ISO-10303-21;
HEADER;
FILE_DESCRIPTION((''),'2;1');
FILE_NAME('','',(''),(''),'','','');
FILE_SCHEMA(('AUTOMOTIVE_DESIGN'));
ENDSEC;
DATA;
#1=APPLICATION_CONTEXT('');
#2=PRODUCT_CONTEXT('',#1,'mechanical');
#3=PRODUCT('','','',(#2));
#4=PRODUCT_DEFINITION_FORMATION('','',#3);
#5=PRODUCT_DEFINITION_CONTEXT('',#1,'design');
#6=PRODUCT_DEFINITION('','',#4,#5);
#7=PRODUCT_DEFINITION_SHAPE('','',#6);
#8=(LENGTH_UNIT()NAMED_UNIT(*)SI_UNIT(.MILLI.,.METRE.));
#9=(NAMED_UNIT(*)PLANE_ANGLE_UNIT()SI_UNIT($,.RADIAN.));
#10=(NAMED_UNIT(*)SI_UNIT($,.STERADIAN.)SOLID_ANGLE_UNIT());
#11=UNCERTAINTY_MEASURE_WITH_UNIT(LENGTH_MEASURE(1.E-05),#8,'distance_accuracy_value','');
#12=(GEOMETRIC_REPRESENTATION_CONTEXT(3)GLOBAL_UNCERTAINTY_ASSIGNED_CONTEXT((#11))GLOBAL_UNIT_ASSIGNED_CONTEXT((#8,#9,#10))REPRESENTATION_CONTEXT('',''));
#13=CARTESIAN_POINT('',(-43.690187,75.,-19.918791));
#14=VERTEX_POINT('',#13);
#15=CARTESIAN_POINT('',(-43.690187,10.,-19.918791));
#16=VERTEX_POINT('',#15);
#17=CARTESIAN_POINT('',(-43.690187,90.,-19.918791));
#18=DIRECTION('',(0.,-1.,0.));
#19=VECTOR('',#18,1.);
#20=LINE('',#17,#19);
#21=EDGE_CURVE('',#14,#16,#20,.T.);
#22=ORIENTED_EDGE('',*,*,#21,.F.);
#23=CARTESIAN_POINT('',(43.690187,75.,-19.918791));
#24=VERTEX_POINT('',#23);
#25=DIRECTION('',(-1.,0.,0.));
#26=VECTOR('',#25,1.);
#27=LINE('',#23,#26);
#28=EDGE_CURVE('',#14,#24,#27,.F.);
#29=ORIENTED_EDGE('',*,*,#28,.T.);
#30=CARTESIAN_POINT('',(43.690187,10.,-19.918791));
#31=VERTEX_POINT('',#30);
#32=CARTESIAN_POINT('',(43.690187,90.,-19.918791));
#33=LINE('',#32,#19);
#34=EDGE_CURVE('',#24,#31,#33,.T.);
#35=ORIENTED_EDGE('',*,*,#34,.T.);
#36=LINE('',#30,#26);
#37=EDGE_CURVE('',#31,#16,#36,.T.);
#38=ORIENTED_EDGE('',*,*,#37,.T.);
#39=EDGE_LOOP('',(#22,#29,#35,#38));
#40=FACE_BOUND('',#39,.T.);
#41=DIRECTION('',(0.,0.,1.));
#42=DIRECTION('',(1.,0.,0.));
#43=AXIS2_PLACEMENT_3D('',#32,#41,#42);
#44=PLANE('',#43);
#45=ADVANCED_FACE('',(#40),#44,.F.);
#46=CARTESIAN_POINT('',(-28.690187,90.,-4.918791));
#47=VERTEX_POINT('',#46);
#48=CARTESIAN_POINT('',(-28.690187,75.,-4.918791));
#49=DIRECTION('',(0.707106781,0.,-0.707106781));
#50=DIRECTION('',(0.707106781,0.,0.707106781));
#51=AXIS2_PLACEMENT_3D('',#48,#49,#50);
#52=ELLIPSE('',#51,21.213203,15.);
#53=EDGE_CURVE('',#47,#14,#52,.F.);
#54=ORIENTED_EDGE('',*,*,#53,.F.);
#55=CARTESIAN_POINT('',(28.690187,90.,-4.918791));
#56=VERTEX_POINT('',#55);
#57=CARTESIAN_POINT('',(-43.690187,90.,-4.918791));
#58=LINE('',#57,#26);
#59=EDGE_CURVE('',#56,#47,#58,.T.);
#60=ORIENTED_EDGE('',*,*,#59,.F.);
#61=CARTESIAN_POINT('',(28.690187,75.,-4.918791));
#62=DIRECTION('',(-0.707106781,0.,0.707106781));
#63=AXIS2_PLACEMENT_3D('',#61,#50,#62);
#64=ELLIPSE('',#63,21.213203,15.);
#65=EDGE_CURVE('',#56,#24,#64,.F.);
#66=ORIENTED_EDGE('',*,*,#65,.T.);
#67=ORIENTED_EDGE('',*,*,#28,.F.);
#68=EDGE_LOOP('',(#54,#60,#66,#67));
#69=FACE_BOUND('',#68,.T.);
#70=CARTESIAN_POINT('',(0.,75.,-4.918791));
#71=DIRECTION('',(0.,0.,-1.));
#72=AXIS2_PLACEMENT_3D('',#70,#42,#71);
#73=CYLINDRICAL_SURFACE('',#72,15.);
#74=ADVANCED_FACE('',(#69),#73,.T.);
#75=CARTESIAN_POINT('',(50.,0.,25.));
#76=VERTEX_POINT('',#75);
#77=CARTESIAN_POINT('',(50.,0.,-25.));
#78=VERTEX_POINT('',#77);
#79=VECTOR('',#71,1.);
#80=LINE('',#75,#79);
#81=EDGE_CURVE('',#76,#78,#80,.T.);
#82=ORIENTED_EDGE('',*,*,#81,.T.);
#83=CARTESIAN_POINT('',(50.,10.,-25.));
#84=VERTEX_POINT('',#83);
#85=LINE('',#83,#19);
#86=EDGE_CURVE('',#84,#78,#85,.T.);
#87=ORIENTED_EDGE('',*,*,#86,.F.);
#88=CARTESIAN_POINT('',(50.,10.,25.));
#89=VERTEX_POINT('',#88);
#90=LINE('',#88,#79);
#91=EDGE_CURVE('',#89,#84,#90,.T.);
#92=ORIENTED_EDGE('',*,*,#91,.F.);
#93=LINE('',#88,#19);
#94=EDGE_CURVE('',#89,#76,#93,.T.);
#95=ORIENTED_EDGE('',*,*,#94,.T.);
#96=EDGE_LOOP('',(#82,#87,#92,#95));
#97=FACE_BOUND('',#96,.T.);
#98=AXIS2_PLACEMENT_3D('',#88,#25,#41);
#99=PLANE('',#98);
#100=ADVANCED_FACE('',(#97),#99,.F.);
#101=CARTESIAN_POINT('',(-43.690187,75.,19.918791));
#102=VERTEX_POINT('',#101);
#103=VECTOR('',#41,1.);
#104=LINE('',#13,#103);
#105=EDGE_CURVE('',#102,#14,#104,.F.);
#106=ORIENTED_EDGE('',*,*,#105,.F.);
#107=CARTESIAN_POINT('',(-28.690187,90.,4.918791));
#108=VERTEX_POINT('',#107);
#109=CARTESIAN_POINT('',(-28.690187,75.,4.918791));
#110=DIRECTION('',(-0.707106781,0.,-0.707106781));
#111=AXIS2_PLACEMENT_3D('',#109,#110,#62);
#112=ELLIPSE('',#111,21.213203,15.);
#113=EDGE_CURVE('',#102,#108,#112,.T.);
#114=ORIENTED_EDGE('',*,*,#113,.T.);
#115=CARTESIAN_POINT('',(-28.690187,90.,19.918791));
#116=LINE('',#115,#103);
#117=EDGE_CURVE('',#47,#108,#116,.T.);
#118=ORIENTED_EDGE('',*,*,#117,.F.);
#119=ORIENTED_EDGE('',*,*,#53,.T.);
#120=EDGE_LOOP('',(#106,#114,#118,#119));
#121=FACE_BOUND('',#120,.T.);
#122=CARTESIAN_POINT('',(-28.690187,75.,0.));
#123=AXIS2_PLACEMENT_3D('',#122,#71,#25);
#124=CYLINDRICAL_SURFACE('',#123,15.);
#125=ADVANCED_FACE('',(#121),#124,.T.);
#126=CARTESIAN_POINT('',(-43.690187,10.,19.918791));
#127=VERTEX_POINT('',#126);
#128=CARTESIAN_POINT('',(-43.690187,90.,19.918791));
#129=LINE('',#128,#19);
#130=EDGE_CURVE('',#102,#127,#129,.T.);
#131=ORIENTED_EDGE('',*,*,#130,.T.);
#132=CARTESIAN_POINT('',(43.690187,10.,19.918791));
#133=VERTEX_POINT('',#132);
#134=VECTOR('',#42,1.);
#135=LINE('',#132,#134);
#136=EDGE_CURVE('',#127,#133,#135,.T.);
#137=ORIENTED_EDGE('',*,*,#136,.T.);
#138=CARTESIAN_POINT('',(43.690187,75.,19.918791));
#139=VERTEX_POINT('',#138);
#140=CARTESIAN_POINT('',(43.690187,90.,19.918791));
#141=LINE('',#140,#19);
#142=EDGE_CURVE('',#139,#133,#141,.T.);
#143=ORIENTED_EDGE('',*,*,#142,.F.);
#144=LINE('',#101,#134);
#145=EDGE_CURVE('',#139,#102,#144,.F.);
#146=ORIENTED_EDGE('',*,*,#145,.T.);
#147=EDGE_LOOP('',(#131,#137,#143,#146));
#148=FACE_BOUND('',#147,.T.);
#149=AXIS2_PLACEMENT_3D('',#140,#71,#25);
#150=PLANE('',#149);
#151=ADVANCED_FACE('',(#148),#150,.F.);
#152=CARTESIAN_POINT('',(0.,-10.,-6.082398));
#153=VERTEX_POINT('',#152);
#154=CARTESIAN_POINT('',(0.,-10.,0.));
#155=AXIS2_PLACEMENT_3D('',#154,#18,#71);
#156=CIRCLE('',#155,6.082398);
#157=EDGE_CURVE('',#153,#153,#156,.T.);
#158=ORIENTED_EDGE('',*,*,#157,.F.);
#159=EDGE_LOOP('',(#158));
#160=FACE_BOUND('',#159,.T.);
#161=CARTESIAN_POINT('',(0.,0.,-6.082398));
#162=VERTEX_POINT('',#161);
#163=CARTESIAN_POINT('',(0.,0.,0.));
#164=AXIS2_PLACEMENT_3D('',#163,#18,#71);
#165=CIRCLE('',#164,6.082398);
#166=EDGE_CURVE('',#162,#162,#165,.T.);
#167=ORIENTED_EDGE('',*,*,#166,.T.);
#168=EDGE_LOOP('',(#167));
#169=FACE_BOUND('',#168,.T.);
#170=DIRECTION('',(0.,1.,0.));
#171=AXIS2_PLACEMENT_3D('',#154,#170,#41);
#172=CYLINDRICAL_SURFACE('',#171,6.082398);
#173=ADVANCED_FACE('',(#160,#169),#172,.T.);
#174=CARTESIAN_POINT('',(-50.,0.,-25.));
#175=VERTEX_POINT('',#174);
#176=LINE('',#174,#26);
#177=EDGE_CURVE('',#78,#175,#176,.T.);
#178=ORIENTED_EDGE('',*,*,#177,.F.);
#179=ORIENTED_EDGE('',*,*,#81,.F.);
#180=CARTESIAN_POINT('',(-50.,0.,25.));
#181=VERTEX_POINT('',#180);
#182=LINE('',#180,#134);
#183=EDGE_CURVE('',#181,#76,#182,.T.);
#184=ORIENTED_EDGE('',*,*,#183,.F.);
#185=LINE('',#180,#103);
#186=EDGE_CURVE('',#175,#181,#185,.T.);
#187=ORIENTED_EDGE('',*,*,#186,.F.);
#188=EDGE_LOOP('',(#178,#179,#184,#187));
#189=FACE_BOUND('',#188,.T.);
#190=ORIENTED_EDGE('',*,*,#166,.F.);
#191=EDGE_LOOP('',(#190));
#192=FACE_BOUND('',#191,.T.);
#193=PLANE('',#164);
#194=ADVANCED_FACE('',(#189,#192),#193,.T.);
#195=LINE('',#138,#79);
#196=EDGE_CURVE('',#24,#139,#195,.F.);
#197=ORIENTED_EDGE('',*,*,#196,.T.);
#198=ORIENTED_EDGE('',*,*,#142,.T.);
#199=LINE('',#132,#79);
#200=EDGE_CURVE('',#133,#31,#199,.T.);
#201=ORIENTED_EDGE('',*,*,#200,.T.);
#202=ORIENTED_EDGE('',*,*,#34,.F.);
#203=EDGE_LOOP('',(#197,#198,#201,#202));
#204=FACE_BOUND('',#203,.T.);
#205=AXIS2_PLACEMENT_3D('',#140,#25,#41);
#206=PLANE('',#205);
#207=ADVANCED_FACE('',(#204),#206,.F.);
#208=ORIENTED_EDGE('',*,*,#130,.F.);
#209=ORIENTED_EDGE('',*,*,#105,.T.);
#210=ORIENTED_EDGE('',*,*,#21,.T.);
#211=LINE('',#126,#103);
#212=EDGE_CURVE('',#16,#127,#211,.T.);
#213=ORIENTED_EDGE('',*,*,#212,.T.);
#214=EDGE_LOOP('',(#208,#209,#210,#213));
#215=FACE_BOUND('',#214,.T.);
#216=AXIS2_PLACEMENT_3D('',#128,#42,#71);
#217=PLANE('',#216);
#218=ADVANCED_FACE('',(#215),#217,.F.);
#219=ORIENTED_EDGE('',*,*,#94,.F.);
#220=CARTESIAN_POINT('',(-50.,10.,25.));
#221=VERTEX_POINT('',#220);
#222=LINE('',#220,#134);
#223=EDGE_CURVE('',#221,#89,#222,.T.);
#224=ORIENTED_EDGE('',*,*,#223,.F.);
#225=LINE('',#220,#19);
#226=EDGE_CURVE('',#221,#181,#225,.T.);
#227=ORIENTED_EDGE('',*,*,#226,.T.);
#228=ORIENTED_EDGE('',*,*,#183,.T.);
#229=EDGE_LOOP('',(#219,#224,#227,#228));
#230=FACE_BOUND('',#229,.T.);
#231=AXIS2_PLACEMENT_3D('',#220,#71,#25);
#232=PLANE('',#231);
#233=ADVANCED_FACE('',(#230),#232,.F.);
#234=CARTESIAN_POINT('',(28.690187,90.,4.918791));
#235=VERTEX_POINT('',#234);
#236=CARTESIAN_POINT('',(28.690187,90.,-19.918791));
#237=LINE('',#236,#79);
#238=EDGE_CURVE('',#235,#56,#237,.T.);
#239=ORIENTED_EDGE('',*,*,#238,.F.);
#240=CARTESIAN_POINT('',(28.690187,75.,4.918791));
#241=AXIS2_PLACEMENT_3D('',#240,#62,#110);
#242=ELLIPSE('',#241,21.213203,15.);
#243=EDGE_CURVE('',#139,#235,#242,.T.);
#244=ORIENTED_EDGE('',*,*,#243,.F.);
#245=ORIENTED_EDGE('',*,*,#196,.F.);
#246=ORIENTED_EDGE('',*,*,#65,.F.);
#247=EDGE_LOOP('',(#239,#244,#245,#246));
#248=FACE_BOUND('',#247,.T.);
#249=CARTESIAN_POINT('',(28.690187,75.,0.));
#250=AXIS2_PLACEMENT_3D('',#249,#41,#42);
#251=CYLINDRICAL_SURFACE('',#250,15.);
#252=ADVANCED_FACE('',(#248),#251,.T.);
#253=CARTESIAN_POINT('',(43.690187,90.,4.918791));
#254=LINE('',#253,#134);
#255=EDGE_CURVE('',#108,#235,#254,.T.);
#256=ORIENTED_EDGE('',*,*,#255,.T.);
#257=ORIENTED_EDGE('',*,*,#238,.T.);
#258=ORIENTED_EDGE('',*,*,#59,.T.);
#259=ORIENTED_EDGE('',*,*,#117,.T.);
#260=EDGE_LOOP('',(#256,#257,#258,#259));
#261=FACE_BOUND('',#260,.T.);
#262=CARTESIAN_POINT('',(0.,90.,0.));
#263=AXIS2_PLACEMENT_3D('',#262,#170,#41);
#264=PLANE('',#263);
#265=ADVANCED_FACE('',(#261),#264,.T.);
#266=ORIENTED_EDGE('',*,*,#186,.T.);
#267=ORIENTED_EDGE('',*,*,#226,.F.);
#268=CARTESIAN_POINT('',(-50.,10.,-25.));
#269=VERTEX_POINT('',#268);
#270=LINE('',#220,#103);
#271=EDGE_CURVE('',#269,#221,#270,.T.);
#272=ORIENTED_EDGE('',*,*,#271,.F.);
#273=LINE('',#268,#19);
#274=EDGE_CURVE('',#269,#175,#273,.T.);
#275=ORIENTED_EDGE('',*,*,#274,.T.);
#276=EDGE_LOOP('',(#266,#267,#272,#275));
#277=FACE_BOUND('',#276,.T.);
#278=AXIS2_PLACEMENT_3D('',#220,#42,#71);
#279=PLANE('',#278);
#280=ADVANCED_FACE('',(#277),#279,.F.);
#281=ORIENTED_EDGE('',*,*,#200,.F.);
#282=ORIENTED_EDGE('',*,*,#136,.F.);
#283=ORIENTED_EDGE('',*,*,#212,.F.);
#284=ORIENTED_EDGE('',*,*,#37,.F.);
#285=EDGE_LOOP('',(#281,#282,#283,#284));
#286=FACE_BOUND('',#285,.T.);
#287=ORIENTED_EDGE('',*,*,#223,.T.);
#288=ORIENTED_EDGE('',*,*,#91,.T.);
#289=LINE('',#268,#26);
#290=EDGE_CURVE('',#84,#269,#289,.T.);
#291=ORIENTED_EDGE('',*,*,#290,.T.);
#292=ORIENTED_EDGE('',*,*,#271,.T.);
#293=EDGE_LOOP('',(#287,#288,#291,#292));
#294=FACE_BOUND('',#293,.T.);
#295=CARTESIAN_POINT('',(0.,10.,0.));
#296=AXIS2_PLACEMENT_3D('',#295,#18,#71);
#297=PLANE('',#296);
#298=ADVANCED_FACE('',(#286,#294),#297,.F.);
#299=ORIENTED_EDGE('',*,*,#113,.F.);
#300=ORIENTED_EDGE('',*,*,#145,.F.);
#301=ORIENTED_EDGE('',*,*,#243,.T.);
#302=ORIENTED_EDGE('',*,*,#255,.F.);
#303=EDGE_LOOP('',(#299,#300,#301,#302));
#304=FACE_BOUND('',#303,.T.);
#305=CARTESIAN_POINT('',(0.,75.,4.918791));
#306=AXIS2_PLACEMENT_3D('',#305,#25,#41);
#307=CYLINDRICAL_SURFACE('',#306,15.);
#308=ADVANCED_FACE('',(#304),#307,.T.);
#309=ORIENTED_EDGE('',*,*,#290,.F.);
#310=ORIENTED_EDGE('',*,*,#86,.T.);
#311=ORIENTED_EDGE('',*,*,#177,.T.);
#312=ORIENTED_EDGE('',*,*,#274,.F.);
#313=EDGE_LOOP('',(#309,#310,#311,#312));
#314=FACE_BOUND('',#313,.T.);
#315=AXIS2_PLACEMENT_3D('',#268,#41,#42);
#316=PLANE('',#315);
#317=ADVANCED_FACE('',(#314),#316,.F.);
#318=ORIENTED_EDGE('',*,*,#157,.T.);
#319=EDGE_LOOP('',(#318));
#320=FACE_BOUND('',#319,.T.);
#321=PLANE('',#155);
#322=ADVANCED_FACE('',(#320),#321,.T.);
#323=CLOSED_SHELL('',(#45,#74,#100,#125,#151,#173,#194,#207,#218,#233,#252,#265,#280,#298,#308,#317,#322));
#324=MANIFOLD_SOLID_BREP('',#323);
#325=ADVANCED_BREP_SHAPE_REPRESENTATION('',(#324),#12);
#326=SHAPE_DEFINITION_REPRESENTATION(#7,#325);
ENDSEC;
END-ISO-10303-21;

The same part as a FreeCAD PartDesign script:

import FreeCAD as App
import Part
import Sketcher

V = App.Vector
Q = App.Units.Quantity


def edges_at(feature, points):
    """Names of the edges that pass closest to the given points."""
    edges = feature.Shape.Edges
    near = lambda p: min(range(len(edges)), key=lambda i: edges[i].distToShape(Part.Vertex(*p))[0])
    return sorted({f"Edge{near(p) + 1}" for p in points})

doc = App.newDocument("Part")
body = doc.addObject("PartDesign::Body", "Body")

# Sketch on XZ plane
sketch1 = doc.addObject("Sketcher::SketchObject", "Sketch")
body.addObject(sketch1)
sketch1.AttachmentSupport = (doc.XZ_Plane, [""])
sketch1.MapMode = "FlatFace"
sketch1.addGeometry([
    Part.LineSegment(V(-50, -25, 0), V(-50, 25, 0)),
    Part.LineSegment(V(-50, 25, 0), V(50, 25, 0)),
    Part.LineSegment(V(50, 25, 0), V(50, -25, 0)),
    Part.LineSegment(V(50, -25, 0), V(-50, -25, 0)),
], False)
sketch1.addConstraint([
    Sketcher.Constraint("Coincident", 0, 2, 1, 1),
    Sketcher.Constraint("Coincident", 1, 2, 2, 1),
    Sketcher.Constraint("Coincident", 2, 2, 3, 1),
    Sketcher.Constraint("Coincident", 3, 2, 0, 1),
    Sketcher.Constraint("Vertical", 0),
    Sketcher.Constraint("Horizontal", 1),
    Sketcher.Constraint("Vertical", 2),
    Sketcher.Constraint("Horizontal", 3),
    Sketcher.Constraint("Symmetric", 0, 2, 2, 2, -1, 1),
    Sketcher.Constraint("DistanceX", 1, 1, 1, 2, Q("100 mm")),
    Sketcher.Constraint("DistanceY", 0, 1, 0, 2, Q("50 mm")),
])
pad1 = doc.addObject("PartDesign::Pad", "Pad")
body.addObject(pad1)
pad1.Profile = sketch1
pad1.Length = 10
pad1.Reversed = True

# Sketch on XZ plane
sketch2 = doc.addObject("Sketcher::SketchObject", "Sketch001")
body.addObject(sketch2)
sketch2.AttachmentSupport = (doc.XZ_Plane, [""])
sketch2.MapMode = "FlatFace"
sketch2.AttachmentOffset = App.Placement(V(0, 0, -10), App.Rotation())
sketch2.addGeometry([
    Part.LineSegment(V(-44, -20, 0), V(-44, 20, 0)),
    Part.LineSegment(V(-44, 20, 0), V(44, 20, 0)),
    Part.LineSegment(V(44, 20, 0), V(44, -20, 0)),
    Part.LineSegment(V(44, -20, 0), V(-44, -20, 0)),
], False)
sketch2.addConstraint([
    Sketcher.Constraint("Coincident", 0, 2, 1, 1),
    Sketcher.Constraint("Coincident", 1, 2, 2, 1),
    Sketcher.Constraint("Coincident", 2, 2, 3, 1),
    Sketcher.Constraint("Coincident", 3, 2, 0, 1),
    Sketcher.Constraint("Vertical", 0),
    Sketcher.Constraint("Horizontal", 1),
    Sketcher.Constraint("Vertical", 2),
    Sketcher.Constraint("Horizontal", 3),
    Sketcher.Constraint("Symmetric", 0, 2, 2, 2, -1, 1),
    Sketcher.Constraint("DistanceY", 0, 1, 0, 2, Q("39.837582 mm")),
    Sketcher.Constraint("DistanceX", 1, 1, 1, 2, Q("87.380374 mm")),
])
pad2 = doc.addObject("PartDesign::Pad", "Pad001")
body.addObject(pad2)
pad2.Profile = sketch2
pad2.Length = 80
pad2.Reversed = True
doc.recompute()

fillet = doc.addObject("PartDesign::Fillet", "Fillet")
body.addObject(fillet)
fillet.Base = (pad2, edges_at(pad2, [
    (-43.69, 90, 0),
    (0, 90, 19.919),
    (43.69, 90, 0),
    (0, 90, -19.919),
]))
fillet.Radius = 15

# Sketch on XZ plane
sketch3 = doc.addObject("Sketcher::SketchObject", "Sketch002")
body.addObject(sketch3)
sketch3.AttachmentSupport = (doc.XZ_Plane, [""])
sketch3.MapMode = "FlatFace"
sketch3.addGeometry(Part.Circle(V(0, 0, 0), V(0, 0, 1), 6), False)
sketch3.addConstraint([
    Sketcher.Constraint("Coincident", 0, 3, -1, 1),
    Sketcher.Constraint("Diameter", 0, Q("12.164795 mm")),
])
pad3 = doc.addObject("PartDesign::Pad", "Pad002")
body.addObject(pad3)
pad3.Profile = sketch3
pad3.Length = 10

doc.recompute()
